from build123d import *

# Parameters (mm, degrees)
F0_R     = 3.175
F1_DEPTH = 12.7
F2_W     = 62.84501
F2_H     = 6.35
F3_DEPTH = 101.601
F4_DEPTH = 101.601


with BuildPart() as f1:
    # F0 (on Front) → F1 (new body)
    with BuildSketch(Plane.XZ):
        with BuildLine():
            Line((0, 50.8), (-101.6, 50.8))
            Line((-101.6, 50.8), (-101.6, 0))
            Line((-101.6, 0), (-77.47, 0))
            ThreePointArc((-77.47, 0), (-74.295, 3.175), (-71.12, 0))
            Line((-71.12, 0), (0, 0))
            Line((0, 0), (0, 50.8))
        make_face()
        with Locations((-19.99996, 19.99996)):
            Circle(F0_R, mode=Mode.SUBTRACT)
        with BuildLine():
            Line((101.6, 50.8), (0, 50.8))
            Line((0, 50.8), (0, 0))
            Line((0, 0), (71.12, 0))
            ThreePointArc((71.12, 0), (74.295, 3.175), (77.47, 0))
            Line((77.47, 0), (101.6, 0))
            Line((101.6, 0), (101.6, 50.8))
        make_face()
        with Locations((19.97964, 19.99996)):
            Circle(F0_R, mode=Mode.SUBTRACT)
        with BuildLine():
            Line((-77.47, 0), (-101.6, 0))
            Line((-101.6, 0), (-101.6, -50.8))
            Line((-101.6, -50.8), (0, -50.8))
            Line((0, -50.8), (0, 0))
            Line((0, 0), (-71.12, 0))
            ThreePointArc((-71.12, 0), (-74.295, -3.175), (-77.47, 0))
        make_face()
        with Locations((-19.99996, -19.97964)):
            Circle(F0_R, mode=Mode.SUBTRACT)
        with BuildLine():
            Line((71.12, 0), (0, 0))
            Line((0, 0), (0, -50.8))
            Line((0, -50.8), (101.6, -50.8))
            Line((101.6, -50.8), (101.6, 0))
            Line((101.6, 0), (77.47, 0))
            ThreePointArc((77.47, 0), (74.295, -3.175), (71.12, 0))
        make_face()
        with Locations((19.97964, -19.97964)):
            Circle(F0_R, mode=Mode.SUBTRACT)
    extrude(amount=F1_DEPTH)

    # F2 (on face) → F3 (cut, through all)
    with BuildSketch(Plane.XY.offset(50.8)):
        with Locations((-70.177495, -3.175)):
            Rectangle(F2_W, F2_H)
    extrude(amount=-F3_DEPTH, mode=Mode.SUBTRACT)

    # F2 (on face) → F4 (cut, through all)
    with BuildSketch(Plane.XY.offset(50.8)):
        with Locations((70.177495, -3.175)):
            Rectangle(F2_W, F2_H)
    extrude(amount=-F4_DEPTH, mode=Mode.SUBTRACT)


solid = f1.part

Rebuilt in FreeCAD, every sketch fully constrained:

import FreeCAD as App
import Part
import Sketcher
Q = App.Units.Quantity

doc = App.newDocument("Part")
body = doc.addObject("PartDesign::Body", "Body")

sketch1 = doc.addObject("Sketcher::SketchObject", "Sketch")
body.addObject(sketch1)
sketch1.AttachmentSupport = (doc.XZ_Plane, [""])
sketch1.MapMode = "FlatFace"
sketch1.addGeometry([
    Part.LineSegment(App.Vector(-101.6, 50.8, 0), App.Vector(-101.6, -50.8, 0)),
    Part.LineSegment(App.Vector(-101.6, -50.8, 0), App.Vector(101.6, -50.8, 0)),
    Part.LineSegment(App.Vector(101.6, -50.8, 0), App.Vector(101.6, 50.8, 0)),
    Part.LineSegment(App.Vector(101.6, 50.8, 0), App.Vector(-101.6, 50.8, 0)),
    Part.Circle(App.Vector(-19.99996, -19.97964, 0), App.Vector(0, 0, 1), 3.175),
    Part.Circle(App.Vector(-74.295, 0, 0), App.Vector(0, 0, 1), 3.175),
    Part.Circle(App.Vector(19.97964, -19.97964, 0), App.Vector(0, 0, 1), 3.175),
    Part.Circle(App.Vector(74.295, 0, 0), App.Vector(0, 0, 1), 3.175),
    Part.Circle(App.Vector(-19.99996, 19.99996, 0), App.Vector(0, 0, 1), 3.175),
    Part.Circle(App.Vector(19.97964, 19.99996, 0), App.Vector(0, 0, 1), 3.175),
], False)
sketch1.addConstraint([
    Sketcher.Constraint("Coincident", 0, 2, 1, 1),
    Sketcher.Constraint("Coincident", 1, 2, 2, 1),
    Sketcher.Constraint("Coincident", 2, 2, 3, 1),
    Sketcher.Constraint("Coincident", 3, 2, 0, 1),
    Sketcher.Constraint("Vertical", 0),
    Sketcher.Constraint("Horizontal", 1),
    Sketcher.Constraint("Vertical", 2),
    Sketcher.Constraint("Horizontal", 3),
    Sketcher.Constraint("Equal", 4, 5),
    Sketcher.Constraint("Equal", 5, 6),
    Sketcher.Constraint("Equal", 6, 7),
    Sketcher.Constraint("Equal", 7, 8),
    Sketcher.Constraint("Equal", 8, 9),
    Sketcher.Constraint("Symmetric", 5, 3, 7, 3, -1, 1),
    Sketcher.Constraint("Symmetric", 0, 2, 2, 2, -1, 1),
    Sketcher.Constraint("PointOnObject", 5, 3, -1),
    Sketcher.Constraint("Horizontal", 4, 3, 6, 3),
    Sketcher.Constraint("Horizontal", 8, 3, 9, 3),
    Sketcher.Constraint("Vertical", 4, 3, 8, 3),
    Sketcher.Constraint("Vertical", 6, 3, 9, 3),
    Sketcher.Constraint("Diameter", 4, Q("0.25 in")),
    Sketcher.Constraint("DistanceX", 1, 1, 1, 2, Q("8 in")),
    Sketcher.Constraint("DistanceY", 0, 2, 0, 1, Q("4 in")),
    Sketcher.Constraint("DistanceX", 5, 3, 7, 3, Q("5.85 in")),
    Sketcher.Constraint("DistanceX", 4, 3, 6, 3, Q("1.574 in")),
    Sketcher.Constraint("DistanceY", 4, 3, 8, 3, Q("1.574 in")),
    Sketcher.Constraint("DistanceX", 4, 3, -1, 1, Q("0.7874 in")),
    Sketcher.Constraint("DistanceY", 4, 3, -1, 1, Q("0.7866 in")),
])
pad1 = doc.addObject("PartDesign::Pad", "Pad")
body.addObject(pad1)
pad1.Profile = sketch1
pad1.Length = Q("0.5 in")

sketch2 = doc.addObject("Sketcher::SketchObject", "Sketch001")
body.addObject(sketch2)
sketch2.AttachmentSupport = (doc.XY_Plane, [""])
sketch2.MapMode = "FlatFace"
sketch2.AttachmentOffset = App.Placement(App.Vector(0, 0, 2 * 25.4), App.Rotation())
sketch2.addGeometry([
    Part.LineSegment(App.Vector(-101.6, 0, 0), App.Vector(-101.6, -6.35, 0)),
    Part.LineSegment(App.Vector(-101.6, -6.35, 0), App.Vector(-38.75499, -6.35, 0)),
    Part.LineSegment(App.Vector(-38.75499, -6.35, 0), App.Vector(-38.75499, 0, 0)),
    Part.LineSegment(App.Vector(-38.75499, 0, 0), App.Vector(-101.6, 0, 0)),
], False)
sketch2.addConstraint([
    Sketcher.Constraint("Coincident", 0, 2, 1, 1),
    Sketcher.Constraint("Coincident", 1, 2, 2, 1),
    Sketcher.Constraint("Coincident", 2, 2, 3, 1),
    Sketcher.Constraint("Coincident", 3, 2, 0, 1),
    Sketcher.Constraint("Vertical", 0),
    Sketcher.Constraint("Horizontal", 1),
    Sketcher.Constraint("Vertical", 2),
    Sketcher.Constraint("Horizontal", 3),
    Sketcher.Constraint("PointOnObject", 2, 2, -1),
    Sketcher.Constraint("DistanceX", 0, 2, -1, 1, Q("4 in")),
    Sketcher.Constraint("DistanceY", 0, 2, 0, 1, Q("0.25 in")),
    Sketcher.Constraint("DistanceX", 1, 1, 1, 2, Q("62.84501 mm")),
])
pocket1 = doc.addObject("PartDesign::Pocket", "Pocket")
body.addObject(pocket1)
pocket1.Profile = sketch2
pocket1.Type = "ThroughAll"

sketch3 = doc.addObject("Sketcher::SketchObject", "Sketch002")
body.addObject(sketch3)
sketch3.AttachmentSupport = (doc.XY_Plane, [""])
sketch3.MapMode = "FlatFace"
sketch3.AttachmentOffset = App.Placement(App.Vector(0, 0, 2 * 25.4), App.Rotation())
sketch3.addGeometry([
    Part.LineSegment(App.Vector(38.75499, 0, 0), App.Vector(38.75499, -6.35, 0)),
    Part.LineSegment(App.Vector(38.75499, -6.35, 0), App.Vector(101.6, -6.35, 0)),
    Part.LineSegment(App.Vector(101.6, -6.35, 0), App.Vector(101.6, 0, 0)),
    Part.LineSegment(App.Vector(101.6, 0, 0), App.Vector(38.75499, 0, 0)),
], False)
sketch3.addConstraint([
    Sketcher.Constraint("Coincident", 0, 2, 1, 1),
    Sketcher.Constraint("Coincident", 1, 2, 2, 1),
    Sketcher.Constraint("Coincident", 2, 2, 3, 1),
    Sketcher.Constraint("Coincident", 3, 2, 0, 1),
    Sketcher.Constraint("Vertical", 0),
    Sketcher.Constraint("Horizontal", 1),
    Sketcher.Constraint("Vertical", 2),
    Sketcher.Constraint("Horizontal", 3),
    Sketcher.Constraint("PointOnObject", 2, 2, -1),
    Sketcher.Constraint("DistanceX", -1, 1, 1, 2, Q("4 in")),
    Sketcher.Constraint("DistanceY", 0, 2, 0, 1, Q("0.25 in")),
    Sketcher.Constraint("DistanceX", 1, 1, 1, 2, Q("62.84501 mm")),
])
pocket2 = doc.addObject("PartDesign::Pocket", "Pocket001")
body.addObject(pocket2)
pocket2.Profile = sketch3
pocket2.Type = "ThroughAll"

doc.recompute()
